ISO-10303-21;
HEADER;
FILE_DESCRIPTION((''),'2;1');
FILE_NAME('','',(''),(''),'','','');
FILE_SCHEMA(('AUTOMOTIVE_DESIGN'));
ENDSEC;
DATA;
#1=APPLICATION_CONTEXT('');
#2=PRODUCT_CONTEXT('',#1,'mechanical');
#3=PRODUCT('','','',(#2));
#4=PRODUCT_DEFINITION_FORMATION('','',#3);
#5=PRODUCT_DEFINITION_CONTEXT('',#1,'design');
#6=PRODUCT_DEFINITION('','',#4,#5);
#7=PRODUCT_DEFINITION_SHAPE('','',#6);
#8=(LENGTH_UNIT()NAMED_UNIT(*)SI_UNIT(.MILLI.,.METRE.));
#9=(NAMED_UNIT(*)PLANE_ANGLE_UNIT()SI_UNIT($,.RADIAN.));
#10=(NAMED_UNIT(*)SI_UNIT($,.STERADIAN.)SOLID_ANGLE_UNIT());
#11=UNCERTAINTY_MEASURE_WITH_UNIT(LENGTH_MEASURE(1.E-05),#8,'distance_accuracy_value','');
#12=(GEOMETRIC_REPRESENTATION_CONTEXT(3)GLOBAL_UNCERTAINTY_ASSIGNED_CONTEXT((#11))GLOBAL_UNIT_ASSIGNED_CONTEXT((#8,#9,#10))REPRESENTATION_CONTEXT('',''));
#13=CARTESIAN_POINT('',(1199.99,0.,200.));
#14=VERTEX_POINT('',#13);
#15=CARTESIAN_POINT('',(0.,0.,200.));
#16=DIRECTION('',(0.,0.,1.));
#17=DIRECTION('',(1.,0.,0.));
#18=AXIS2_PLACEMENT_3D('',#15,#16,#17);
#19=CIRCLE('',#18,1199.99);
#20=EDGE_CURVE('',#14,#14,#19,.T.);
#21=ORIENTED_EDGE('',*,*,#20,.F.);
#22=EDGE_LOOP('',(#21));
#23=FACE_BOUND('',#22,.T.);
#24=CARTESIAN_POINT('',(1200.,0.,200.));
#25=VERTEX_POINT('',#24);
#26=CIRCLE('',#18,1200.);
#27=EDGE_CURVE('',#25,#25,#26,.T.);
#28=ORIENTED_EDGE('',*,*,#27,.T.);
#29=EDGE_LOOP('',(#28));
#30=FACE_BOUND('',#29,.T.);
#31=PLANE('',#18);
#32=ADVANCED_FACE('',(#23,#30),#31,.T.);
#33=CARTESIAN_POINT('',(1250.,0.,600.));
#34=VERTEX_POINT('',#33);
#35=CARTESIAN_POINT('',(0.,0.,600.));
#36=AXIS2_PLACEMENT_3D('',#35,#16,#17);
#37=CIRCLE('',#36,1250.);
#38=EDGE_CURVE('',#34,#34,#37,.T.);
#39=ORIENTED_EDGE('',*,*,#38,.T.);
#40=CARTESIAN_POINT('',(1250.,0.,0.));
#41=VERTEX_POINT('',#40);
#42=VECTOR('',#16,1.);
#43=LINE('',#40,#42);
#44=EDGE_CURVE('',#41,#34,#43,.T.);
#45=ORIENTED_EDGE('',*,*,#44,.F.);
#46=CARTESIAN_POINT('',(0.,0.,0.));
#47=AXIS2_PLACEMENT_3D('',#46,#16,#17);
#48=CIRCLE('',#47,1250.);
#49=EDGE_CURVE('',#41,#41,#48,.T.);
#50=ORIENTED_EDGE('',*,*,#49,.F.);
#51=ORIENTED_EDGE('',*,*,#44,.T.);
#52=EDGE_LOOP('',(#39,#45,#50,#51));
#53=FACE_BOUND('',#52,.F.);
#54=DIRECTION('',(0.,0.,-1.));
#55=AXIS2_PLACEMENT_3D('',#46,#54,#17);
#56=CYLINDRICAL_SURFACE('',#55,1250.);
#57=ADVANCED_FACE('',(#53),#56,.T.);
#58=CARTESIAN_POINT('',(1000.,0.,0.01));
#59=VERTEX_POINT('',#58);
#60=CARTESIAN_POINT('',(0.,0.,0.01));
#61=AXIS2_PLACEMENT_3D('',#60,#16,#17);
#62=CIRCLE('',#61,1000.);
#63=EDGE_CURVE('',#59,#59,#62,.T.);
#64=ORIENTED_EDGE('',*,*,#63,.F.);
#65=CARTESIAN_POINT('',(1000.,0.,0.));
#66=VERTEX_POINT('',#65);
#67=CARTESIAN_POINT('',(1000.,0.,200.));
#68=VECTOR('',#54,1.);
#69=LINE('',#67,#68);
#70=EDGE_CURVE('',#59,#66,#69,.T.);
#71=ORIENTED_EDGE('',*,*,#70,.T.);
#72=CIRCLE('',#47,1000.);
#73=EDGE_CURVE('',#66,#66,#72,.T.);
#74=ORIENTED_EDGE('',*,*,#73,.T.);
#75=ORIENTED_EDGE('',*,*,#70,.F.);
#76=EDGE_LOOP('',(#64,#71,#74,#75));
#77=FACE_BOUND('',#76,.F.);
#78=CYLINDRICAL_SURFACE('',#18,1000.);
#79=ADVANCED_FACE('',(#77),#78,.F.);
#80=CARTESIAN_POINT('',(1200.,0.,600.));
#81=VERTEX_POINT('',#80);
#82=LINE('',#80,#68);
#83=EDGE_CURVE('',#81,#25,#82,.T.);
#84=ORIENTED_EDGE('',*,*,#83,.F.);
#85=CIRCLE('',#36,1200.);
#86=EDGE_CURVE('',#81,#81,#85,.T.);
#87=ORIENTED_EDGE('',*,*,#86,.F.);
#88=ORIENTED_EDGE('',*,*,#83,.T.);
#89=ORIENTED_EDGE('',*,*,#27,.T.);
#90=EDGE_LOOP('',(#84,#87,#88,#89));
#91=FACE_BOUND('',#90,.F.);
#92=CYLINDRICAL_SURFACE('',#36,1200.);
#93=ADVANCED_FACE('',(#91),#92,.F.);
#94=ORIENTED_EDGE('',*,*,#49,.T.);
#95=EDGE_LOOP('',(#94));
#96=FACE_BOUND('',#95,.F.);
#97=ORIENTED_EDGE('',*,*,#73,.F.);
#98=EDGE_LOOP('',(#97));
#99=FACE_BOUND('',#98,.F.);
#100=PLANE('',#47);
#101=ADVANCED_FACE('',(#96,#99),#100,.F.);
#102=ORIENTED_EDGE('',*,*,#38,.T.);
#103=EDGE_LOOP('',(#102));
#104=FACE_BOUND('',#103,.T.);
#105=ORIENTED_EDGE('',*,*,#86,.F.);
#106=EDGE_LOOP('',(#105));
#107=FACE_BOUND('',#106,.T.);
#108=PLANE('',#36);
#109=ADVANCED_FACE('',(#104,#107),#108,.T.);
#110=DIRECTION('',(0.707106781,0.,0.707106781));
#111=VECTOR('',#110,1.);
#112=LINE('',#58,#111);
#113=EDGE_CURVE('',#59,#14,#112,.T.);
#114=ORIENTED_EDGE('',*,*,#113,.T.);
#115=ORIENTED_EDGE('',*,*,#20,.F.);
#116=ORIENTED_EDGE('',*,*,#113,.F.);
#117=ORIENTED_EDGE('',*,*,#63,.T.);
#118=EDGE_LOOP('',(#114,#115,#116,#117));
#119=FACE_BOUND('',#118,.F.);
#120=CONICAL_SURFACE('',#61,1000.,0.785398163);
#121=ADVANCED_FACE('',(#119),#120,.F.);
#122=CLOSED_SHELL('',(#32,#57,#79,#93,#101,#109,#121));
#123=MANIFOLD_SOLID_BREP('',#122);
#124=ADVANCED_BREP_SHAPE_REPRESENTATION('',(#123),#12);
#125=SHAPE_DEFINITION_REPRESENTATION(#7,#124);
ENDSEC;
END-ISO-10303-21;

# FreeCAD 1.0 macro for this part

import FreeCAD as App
import Part
import Sketcher


def edges_at(feature, points):
    """Names of the edges that pass closest to the given points."""
    edges = feature.Shape.Edges
    near = lambda p: min(range(len(edges)), key=lambda i: edges[i].distToShape(Part.Vertex(*p))[0])
    return sorted({f"Edge{near(p) + 1}" for p in points})

doc = App.newDocument("Part")
body = doc.addObject("PartDesign::Body", "Body")

sketch1 = body.newObject("Sketcher::SketchObject", "Sketch")
sketch1.AttachmentSupport = (doc.getObject("XY_Plane"), [""])
sketch1.MapMode = "FlatFace"
sketch1.addGeometry(Part.Circle(App.Vector(0, 0, 0), App.Vector(0, 0, 1), 1250), False)
sketch1.addConstraint([
    Sketcher.Constraint("Coincident", 0, 3, -1, 1),
    Sketcher.Constraint("Diameter", 0, 2500.0),
])
pad1 = body.newObject("PartDesign::Pad", "Pad")
pad1.Profile = sketch1
pad1.Length = 600

sketch2 = body.newObject("Sketcher::SketchObject", "Sketch001")
sketch2.AttachmentSupport = (doc.getObject("XY_Plane"), [""])
sketch2.MapMode = "FlatFace"
sketch2.AttachmentOffset = App.Placement(App.Vector(0, 0, 600), App.Rotation())
sketch2.addGeometry(Part.Circle(App.Vector(0, 0, 0), App.Vector(0, 0, 1), 1200), False)
sketch2.addConstraint([
    Sketcher.Constraint("Coincident", 0, 3, -1, 1),
    Sketcher.Constraint("Diameter", 0, 2400.0),
])
pocket1 = body.newObject("PartDesign::Pocket", "Pocket")
pocket1.Profile = sketch2
pocket1.Length = 400

sketch3 = body.newObject("Sketcher::SketchObject", "Sketch002")
sketch3.AttachmentSupport = (doc.getObject("XY_Plane"), [""])
sketch3.MapMode = "FlatFace"
sketch3.AttachmentOffset = App.Placement(App.Vector(0, 0, 200), App.Rotation())
sketch3.addGeometry(Part.Circle(App.Vector(0, 0, 0), App.Vector(0, 0, 1), 1000), False)
sketch3.addConstraint([
    Sketcher.Constraint("Coincident", 0, 3, -1, 1),
    Sketcher.Constraint("Diameter", 0, 2000.0),
])
pocket2 = body.newObject("PartDesign::Pocket", "Pocket001")
pocket2.Profile = sketch3
pocket2.Length = 200
doc.recompute()

chamfer = body.newObject("PartDesign::Chamfer", "Chamfer")
chamfer.Base = (pocket2, edges_at(pocket2, [(-1000, 0, 200)]))
chamfer.Size = 199.99

doc.recompute()
